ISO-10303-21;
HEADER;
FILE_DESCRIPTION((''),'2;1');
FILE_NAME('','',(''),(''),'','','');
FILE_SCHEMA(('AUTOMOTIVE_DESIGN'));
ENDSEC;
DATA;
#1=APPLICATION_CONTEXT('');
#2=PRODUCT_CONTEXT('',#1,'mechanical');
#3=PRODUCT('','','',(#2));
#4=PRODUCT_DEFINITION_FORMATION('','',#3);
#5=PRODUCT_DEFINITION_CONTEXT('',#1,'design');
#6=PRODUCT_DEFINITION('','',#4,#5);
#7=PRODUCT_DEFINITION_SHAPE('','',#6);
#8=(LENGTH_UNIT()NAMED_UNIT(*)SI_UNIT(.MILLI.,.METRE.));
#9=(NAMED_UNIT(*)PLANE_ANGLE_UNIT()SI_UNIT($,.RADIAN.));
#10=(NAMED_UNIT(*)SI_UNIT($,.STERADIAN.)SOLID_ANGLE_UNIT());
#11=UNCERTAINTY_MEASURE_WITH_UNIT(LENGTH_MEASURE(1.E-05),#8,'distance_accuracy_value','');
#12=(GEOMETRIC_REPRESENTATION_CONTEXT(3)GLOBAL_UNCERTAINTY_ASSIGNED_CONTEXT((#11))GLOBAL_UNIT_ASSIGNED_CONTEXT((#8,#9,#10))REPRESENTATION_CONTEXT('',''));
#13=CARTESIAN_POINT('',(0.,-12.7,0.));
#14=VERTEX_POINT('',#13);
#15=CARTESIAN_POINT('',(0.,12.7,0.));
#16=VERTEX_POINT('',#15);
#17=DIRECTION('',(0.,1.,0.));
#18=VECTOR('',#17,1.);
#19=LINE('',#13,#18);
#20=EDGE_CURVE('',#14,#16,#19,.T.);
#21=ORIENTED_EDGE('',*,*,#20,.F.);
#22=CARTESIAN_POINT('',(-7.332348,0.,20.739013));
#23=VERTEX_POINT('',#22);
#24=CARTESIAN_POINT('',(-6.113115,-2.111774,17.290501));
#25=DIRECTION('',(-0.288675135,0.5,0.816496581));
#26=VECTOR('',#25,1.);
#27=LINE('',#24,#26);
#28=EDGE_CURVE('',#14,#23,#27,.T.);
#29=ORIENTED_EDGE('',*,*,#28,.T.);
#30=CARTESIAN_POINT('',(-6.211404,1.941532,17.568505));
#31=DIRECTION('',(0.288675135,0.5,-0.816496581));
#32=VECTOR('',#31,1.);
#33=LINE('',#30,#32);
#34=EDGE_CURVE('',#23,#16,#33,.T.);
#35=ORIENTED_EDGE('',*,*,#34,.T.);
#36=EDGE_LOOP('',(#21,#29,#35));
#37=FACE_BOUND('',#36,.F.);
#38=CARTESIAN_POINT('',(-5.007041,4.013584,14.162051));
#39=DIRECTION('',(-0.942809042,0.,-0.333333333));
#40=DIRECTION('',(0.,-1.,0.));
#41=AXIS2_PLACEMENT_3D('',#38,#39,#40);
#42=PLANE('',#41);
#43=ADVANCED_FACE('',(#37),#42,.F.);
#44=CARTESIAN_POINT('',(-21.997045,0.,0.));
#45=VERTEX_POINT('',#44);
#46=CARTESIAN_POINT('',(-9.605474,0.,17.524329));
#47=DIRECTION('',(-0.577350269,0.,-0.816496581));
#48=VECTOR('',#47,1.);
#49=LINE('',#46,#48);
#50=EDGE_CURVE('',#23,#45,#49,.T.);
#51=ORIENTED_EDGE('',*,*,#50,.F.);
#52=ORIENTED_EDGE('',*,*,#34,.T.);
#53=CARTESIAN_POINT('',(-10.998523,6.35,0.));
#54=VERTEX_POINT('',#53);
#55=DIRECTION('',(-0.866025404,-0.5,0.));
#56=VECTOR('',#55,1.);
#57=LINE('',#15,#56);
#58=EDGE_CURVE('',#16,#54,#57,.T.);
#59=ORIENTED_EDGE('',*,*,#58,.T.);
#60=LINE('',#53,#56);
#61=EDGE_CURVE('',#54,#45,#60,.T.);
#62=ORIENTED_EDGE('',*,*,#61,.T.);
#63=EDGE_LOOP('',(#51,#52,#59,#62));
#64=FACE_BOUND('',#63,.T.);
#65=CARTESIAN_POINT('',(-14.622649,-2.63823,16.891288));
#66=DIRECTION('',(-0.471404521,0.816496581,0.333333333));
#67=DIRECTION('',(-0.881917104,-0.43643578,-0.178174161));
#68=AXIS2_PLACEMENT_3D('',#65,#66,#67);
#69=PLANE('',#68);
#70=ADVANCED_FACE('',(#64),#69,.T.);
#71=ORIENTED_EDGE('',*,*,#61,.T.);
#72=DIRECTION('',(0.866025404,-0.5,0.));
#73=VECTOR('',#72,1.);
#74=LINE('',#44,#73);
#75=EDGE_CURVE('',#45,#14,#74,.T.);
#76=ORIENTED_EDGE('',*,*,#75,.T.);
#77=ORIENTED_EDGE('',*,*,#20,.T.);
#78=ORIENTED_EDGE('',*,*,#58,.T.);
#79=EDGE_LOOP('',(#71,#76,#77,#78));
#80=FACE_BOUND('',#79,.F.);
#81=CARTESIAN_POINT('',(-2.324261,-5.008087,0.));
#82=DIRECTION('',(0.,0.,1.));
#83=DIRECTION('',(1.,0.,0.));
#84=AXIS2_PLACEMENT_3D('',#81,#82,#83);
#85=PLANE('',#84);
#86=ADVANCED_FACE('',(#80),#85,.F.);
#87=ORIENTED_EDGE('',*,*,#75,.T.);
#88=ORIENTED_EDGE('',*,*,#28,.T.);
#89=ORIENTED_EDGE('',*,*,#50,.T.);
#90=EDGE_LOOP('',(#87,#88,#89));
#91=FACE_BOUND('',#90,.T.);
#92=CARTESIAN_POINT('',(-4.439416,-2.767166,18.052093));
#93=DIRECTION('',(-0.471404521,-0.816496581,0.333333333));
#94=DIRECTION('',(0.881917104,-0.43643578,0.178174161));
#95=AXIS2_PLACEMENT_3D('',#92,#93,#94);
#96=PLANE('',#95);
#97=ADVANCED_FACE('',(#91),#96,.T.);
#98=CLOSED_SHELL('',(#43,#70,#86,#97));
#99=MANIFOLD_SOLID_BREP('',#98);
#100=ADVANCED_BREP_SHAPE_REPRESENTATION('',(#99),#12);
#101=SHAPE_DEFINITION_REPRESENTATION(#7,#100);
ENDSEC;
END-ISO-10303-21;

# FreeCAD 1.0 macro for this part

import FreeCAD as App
import Part
import Sketcher
from FreeCAD import Vector
Q = App.Units.Quantity


def add_polygon(sketch, points):
    """Adds a closed chain of lines whose ends are joined by coincident constraints."""
    first, n = sketch.GeometryCount, len(points)
    for a, b in zip(points, points[1:] + points[:1]):
        sketch.addGeometry(Part.LineSegment(App.Vector(*a, 0), App.Vector(*b, 0)), False)
    for i in range(n):
        sketch.addConstraint(Sketcher.Constraint("Coincident", first + i, 2, first + (i + 1) % n, 1))

doc = App.newDocument("Part")
params = doc.addObject("Spreadsheet::Sheet", "Params")
for row, (alias, value) in enumerate([
    ("sketch1_height", "1 in"),
    ("sketch1_length", "1 in"),
    ("pad1_length", "1 in"),
    ("pocket1_length", "1 in"),
    ("pocket2_length", "1 in"),
    ("pocket3_length", "1 in"),
], start=1):
    params.set(f"A{row}", alias)
    params.set(f"B{row}", "=" + value)
    params.setAlias(f"B{row}", alias)

body = doc.addObject("PartDesign::Body", "Body")

sketch1 = body.newObject("Sketcher::SketchObject", "Sketch")
sketch1.AttachmentSupport = (doc.getObject("XY_Plane"), [""])
sketch1.MapMode = "FlatFace"
add_polygon(sketch1, [(0, -13), (0, 13), (-11, 6), (-22, 0)])
sketch1.addConstraint(Sketcher.Constraint("Vertical", 0))
sketch1.addConstraint(Sketcher.Constraint("Symmetric", 0, 2, 3, 2, -1, 1))
sketch1.addConstraint(Sketcher.Constraint("PointOnObject", 2, 2, -1))
sketch1.addConstraint(Sketcher.Constraint("Parallel", 1, 2))
sketch1.addConstraint(Sketcher.Constraint("Equal", 1, 2))
sketch1.addConstraint(Sketcher.Constraint("DistanceY", 0, 1, 0, 2, Q("1 in")))
sketch1.addConstraint(Sketcher.Constraint("Distance", 3, Q("1 in")))
sketch1.setExpression("Constraints[9]", "Params.sketch1_height")
sketch1.setExpression("Constraints[10]", "Params.sketch1_length")
pad1 = body.newObject("PartDesign::Pad", "Pad")
pad1.Profile = sketch1
pad1.setExpression("Length", "Params.pad1_length")

sketch2 = body.newObject("Sketcher::SketchObject", "Sketch001")
sketch2.Placement = App.Placement(Vector(0, 0, 0), App.Rotation(Vector(0, -1, 0), Vector(-0.333333333, 0, 0.942809042), Vector(-0.942809042, 0, -0.333333333), "ZXY"))
add_polygon(sketch2, [(-27, 35), (-27, -5), (19, -5), (19, 35)])
sketch2.addConstraint(Sketcher.Constraint("Vertical", 0))
sketch2.addConstraint(Sketcher.Constraint("Horizontal", 1))
sketch2.addConstraint(Sketcher.Constraint("Vertical", 2))
sketch2.addConstraint(Sketcher.Constraint("Horizontal", 3))
sketch2.addConstraint(Sketcher.Constraint("DistanceX", 1, 1, 1, 2, Q("46.601066 mm")))
sketch2.addConstraint(Sketcher.Constraint("DistanceY", 0, 2, 0, 1, Q("39.762734 mm")))
sketch2.addConstraint(Sketcher.Constraint("DistanceX", -1, 1, 1, 2, Q("19.286949 mm")))
sketch2.addConstraint(Sketcher.Constraint("DistanceY", -1, 1, 2, 2, Q("34.902491 mm")))
pocket1 = body.newObject("PartDesign::Pocket", "Pocket")
pocket1.Profile = sketch2
pocket1.setExpression("Length", "Params.pocket1_length")

sketch3 = body.newObject("Sketcher::SketchObject", "Sketch002")
sketch3.Placement = App.Placement(Vector(-4.888232, -8.466667, 3.456502), App.Rotation(Vector(0.881917104, -0.43643578, 0.178174161), Vector(0, 0.377964473, 0.9258201), Vector(-0.471404521, -0.816496581, 0.333333333), "ZXY"))
add_polygon(sketch3, [(-34, 41), (-34, -10), (35, -10), (35, 41)])
sketch3.addConstraint(Sketcher.Constraint("Vertical", 0))
sketch3.addConstraint(Sketcher.Constraint("Horizontal", 1))
sketch3.addConstraint(Sketcher.Constraint("Vertical", 2))
sketch3.addConstraint(Sketcher.Constraint("Horizontal", 3))
sketch3.addConstraint(Sketcher.Constraint("DistanceX", 1, 1, 1, 2, Q("68.072993 mm")))
sketch3.addConstraint(Sketcher.Constraint("DistanceY", 0, 2, 0, 1, Q("50.768374 mm")))
sketch3.addConstraint(Sketcher.Constraint("DistanceX", 0, 2, -1, 1, Q("33.527587 mm")))
sketch3.addConstraint(Sketcher.Constraint("DistanceY", 0, 2, -1, 1, Q("9.717087 mm")))
pocket2 = body.newObject("PartDesign::Pocket", "Pocket001")
pocket2.Profile = sketch3
pocket2.setExpression("Length", "Params.pocket2_length")
pocket2.Reversed = True

sketch4 = body.newObject("Sketcher::SketchObject", "Sketch003")
sketch4.Placement = App.Placement(Vector(-4.888232, 8.466667, 3.456502), App.Rotation(Vector(-0.881917104, -0.43643578, -0.178174161), Vector(0, -0.377964473, 0.9258201), Vector(-0.471404521, 0.816496581, 0.333333333), "ZXY"))
add_polygon(sketch4, [(-12, 46), (-12, -12), (34, -12), (34, 46)])
sketch4.addConstraint(Sketcher.Constraint("Vertical", 0))
sketch4.addConstraint(Sketcher.Constraint("Horizontal", 1))
sketch4.addConstraint(Sketcher.Constraint("Vertical", 2))
sketch4.addConstraint(Sketcher.Constraint("Horizontal", 3))
sketch4.addConstraint(Sketcher.Constraint("DistanceX", 1, 1, 1, 2, Q("45.621772 mm")))
sketch4.addConstraint(Sketcher.Constraint("DistanceY", 0, 2, 0, 1, Q("58.179088 mm")))
sketch4.addConstraint(Sketcher.Constraint("DistanceX", 0, 2, -1, 1, Q("11.773095 mm")))
sketch4.addConstraint(Sketcher.Constraint("DistanceY", 0, 2, -1, 1, Q("12.454093 mm")))
pocket3 = body.newObject("PartDesign::Pocket", "Pocket002")
pocket3.Profile = sketch4
pocket3.setExpression("Length", "Params.pocket3_length")
pocket3.Reversed = True

doc.recompute()
